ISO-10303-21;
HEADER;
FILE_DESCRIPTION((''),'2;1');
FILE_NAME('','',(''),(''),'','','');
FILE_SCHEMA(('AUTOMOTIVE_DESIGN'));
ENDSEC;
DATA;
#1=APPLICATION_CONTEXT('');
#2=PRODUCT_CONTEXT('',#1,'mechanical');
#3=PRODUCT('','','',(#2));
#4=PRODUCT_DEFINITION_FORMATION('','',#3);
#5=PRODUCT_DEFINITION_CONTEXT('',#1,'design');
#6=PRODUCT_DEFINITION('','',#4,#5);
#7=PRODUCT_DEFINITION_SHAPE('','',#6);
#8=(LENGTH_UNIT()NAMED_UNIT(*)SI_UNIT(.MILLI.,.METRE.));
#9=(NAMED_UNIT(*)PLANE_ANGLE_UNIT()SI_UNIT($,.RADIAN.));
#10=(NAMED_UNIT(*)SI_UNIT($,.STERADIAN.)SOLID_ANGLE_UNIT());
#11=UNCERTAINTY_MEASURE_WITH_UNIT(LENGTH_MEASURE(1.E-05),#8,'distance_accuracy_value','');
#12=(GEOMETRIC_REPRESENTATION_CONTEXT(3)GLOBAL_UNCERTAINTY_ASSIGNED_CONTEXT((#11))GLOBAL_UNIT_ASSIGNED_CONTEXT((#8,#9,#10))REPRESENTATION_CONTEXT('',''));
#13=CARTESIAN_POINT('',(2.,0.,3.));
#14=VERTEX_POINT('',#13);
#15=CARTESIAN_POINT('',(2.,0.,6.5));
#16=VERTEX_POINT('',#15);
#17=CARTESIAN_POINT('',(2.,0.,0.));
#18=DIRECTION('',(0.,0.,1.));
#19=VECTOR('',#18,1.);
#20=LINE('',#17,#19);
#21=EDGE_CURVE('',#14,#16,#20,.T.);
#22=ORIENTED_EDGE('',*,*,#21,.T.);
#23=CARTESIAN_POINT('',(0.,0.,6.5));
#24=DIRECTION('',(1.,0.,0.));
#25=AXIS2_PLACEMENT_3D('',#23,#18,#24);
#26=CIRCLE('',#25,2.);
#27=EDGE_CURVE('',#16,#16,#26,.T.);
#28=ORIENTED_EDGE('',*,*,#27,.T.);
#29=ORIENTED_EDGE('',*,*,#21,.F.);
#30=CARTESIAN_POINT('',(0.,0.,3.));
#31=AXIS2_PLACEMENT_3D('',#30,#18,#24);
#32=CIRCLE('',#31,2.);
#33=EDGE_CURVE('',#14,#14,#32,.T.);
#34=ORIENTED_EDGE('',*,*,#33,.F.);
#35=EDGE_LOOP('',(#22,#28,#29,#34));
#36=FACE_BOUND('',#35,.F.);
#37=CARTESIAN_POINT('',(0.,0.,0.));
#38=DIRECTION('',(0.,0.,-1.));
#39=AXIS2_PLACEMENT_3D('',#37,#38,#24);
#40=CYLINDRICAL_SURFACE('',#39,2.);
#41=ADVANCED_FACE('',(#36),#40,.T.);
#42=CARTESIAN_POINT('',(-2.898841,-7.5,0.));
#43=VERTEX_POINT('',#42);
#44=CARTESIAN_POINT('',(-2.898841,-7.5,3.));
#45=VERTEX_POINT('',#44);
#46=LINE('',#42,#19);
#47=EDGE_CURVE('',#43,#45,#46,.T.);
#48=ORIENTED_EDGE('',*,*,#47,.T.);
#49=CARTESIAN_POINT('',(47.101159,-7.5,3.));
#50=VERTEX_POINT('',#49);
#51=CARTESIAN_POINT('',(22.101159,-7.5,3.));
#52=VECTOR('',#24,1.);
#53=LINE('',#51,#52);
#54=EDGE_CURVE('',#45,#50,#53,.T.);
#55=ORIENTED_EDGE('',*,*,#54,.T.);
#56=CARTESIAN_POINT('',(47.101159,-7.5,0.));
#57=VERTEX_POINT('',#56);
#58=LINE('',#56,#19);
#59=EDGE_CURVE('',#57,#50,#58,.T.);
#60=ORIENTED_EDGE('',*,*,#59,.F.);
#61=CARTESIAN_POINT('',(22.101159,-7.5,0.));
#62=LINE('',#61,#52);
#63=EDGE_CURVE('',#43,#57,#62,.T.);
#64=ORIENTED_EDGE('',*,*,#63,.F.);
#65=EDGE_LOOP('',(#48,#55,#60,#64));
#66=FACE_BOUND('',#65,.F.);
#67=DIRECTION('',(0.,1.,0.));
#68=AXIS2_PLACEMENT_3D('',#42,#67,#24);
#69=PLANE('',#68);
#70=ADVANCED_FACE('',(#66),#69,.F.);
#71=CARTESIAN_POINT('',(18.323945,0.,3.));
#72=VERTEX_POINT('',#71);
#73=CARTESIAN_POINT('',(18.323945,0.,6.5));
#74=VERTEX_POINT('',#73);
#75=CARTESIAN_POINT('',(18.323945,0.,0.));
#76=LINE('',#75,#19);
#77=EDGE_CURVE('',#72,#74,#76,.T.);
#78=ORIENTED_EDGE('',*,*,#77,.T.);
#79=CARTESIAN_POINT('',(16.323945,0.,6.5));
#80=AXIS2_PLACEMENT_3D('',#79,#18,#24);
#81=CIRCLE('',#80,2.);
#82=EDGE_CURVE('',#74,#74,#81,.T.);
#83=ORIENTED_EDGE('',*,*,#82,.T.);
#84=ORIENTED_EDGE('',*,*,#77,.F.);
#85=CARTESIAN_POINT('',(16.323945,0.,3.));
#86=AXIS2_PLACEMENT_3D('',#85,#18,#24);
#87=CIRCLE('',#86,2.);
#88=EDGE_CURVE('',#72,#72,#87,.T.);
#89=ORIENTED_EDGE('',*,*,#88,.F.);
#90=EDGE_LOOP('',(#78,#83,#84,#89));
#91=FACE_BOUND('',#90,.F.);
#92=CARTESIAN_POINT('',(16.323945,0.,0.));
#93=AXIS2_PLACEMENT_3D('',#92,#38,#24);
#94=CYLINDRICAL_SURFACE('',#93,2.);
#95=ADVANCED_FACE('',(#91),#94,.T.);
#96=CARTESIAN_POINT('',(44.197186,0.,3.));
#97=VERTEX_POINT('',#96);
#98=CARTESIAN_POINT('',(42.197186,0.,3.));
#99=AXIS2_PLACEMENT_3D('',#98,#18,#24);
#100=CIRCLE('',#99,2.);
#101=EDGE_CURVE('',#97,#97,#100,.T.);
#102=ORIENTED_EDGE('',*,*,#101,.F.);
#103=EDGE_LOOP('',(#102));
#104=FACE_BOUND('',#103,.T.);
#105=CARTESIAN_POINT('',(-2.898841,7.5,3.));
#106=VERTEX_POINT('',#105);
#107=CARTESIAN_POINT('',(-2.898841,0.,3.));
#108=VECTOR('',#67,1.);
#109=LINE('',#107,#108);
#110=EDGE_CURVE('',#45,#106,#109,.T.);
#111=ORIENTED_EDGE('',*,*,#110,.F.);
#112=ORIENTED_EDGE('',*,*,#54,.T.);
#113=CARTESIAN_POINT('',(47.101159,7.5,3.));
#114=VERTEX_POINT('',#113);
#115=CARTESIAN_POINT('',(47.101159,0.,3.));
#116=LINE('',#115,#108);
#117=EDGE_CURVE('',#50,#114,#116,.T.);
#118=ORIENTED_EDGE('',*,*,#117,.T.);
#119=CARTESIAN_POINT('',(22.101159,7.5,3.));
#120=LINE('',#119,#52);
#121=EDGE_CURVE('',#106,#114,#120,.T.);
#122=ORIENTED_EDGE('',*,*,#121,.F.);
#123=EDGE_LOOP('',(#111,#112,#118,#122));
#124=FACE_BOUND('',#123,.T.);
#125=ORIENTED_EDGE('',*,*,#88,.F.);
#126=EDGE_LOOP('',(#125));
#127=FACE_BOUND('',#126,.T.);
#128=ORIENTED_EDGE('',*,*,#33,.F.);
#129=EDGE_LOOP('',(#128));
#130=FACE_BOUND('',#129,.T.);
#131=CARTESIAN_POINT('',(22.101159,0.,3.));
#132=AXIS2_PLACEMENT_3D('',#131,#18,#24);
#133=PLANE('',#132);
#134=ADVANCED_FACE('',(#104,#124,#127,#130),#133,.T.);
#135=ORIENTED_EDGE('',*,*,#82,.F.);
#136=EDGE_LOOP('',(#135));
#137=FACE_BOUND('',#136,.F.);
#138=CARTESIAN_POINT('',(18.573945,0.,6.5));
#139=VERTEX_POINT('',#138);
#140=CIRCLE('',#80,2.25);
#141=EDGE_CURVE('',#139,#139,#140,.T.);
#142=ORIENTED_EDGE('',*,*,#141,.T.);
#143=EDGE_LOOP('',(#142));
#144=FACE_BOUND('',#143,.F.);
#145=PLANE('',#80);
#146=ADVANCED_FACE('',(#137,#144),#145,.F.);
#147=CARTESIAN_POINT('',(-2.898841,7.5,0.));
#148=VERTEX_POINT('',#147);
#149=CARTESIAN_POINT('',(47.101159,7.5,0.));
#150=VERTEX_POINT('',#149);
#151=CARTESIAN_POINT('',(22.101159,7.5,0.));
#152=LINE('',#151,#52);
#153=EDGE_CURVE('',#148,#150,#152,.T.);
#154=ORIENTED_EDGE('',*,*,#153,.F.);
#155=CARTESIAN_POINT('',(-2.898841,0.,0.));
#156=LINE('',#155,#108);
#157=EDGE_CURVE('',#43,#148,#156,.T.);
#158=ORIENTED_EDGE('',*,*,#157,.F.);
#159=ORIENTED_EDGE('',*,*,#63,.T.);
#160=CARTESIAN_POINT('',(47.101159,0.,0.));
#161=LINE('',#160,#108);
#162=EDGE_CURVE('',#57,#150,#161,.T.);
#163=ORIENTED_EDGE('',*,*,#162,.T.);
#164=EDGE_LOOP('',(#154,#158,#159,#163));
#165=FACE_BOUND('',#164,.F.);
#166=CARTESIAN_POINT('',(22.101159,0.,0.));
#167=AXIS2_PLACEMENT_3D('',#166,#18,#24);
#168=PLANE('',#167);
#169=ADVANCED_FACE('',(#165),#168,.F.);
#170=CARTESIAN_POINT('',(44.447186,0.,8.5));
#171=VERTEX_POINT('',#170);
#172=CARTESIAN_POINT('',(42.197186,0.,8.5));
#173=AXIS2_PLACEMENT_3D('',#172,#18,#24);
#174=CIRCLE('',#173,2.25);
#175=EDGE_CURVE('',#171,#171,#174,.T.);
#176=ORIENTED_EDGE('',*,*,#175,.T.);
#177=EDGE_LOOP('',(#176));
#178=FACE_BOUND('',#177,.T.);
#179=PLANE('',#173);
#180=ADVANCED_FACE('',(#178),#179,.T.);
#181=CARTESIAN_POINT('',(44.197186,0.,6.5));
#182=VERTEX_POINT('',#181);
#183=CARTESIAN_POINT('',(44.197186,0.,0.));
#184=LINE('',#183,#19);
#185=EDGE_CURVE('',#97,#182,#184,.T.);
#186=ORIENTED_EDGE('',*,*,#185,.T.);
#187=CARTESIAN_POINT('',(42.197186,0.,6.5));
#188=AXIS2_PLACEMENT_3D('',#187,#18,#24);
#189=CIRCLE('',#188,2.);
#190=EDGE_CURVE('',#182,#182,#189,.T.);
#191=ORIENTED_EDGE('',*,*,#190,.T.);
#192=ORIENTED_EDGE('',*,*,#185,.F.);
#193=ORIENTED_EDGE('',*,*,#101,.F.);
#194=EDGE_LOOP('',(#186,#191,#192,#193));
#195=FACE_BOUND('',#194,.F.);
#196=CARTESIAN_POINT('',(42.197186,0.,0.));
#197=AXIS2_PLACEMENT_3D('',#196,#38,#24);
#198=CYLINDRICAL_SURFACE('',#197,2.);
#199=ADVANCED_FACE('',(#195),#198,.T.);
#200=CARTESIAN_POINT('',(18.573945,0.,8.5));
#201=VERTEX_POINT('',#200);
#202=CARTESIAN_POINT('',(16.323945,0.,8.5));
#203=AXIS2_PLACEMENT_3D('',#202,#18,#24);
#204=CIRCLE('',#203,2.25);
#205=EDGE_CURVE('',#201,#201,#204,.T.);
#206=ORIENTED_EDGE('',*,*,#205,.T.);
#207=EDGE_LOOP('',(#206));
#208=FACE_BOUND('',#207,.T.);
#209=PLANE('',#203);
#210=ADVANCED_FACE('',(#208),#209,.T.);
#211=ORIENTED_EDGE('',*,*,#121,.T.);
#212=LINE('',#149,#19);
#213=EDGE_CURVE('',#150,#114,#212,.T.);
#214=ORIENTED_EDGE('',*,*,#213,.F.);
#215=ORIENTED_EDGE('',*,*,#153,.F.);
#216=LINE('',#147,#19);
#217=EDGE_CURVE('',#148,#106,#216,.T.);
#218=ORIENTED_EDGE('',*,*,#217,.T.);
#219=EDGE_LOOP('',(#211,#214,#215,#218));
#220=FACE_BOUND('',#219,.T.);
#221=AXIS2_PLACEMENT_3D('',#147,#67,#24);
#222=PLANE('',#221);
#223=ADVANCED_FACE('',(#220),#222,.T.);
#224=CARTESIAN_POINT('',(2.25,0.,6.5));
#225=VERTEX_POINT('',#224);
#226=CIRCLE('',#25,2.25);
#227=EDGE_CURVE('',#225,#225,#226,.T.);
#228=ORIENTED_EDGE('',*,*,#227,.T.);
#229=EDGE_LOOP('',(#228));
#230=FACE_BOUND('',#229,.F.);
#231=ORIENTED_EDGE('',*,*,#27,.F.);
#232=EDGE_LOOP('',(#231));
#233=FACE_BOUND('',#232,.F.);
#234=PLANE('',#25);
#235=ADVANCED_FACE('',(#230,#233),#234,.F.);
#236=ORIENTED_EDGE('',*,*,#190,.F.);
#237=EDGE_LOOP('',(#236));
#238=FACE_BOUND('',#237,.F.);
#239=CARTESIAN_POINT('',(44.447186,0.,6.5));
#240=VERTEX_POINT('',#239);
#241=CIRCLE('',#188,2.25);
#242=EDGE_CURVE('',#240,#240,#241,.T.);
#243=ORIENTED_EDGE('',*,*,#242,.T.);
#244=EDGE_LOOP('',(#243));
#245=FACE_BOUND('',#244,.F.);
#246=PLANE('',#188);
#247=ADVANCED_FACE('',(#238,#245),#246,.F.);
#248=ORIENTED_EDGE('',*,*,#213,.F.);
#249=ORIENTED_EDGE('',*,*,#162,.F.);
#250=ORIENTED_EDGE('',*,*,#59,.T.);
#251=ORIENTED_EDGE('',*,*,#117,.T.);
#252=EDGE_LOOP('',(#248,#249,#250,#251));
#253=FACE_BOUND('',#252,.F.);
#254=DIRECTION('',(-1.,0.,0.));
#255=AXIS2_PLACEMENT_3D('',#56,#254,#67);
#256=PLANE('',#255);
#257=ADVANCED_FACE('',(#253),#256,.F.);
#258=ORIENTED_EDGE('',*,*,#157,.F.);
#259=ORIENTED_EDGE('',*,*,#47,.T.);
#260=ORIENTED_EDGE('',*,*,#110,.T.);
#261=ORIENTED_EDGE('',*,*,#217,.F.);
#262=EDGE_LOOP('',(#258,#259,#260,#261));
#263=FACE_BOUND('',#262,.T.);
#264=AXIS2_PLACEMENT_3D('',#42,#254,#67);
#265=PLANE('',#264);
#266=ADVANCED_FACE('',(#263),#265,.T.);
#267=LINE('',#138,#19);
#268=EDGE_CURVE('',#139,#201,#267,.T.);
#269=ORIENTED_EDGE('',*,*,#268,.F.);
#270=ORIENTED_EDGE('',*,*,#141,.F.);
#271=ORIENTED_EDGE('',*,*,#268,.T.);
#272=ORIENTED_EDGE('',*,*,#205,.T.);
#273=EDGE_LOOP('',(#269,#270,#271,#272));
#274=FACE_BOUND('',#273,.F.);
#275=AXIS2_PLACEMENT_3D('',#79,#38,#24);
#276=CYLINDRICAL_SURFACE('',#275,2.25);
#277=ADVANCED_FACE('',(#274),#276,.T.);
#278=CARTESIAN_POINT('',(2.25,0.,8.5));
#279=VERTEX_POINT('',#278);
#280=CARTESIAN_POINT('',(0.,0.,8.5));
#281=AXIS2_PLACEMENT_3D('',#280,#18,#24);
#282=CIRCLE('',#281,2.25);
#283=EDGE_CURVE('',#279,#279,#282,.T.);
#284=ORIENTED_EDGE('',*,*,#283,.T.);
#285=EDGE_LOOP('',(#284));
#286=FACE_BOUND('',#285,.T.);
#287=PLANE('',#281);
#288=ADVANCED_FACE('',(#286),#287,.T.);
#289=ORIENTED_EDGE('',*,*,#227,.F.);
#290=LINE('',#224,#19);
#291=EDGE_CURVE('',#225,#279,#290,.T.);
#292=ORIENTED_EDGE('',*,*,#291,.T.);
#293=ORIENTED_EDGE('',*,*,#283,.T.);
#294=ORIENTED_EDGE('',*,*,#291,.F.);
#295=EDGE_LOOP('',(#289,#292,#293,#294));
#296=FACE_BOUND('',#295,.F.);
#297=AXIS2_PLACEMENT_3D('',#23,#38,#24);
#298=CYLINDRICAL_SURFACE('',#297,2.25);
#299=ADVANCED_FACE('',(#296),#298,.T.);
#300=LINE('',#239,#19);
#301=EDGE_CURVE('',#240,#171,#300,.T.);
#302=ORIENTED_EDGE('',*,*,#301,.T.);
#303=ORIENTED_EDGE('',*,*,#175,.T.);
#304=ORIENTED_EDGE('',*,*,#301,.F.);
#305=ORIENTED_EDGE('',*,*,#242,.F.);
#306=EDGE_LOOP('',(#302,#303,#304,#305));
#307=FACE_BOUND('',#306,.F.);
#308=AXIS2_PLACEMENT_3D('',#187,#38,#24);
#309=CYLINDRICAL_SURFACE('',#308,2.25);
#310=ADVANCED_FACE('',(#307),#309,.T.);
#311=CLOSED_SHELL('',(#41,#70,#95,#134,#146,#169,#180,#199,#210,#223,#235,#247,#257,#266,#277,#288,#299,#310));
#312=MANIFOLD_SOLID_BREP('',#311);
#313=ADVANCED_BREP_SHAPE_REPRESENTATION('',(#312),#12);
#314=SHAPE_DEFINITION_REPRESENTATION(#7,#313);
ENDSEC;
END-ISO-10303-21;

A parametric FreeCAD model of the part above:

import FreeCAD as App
import Part
import Sketcher
from FreeCAD import Vector

doc = App.newDocument("Part")
params = doc.addObject("Spreadsheet::Sheet", "Params")
for row, (alias, value) in enumerate([
    ("sketch1_diameter", "4 mm"),
    ("sketch1_width", "50 mm"),
    ("sketch1_height", "15 mm"),
    ("pad1_length", "3 mm"),
    ("sketch2_diameter", "4 mm"),
    ("pad2_length", "6.5 mm"),
    ("sketch3_diameter", "4.5 mm"),
    ("pad3_length", "2 mm"),
], start=1):
    params.set(f"A{row}", alias)
    params.set(f"B{row}", "=" + value)
    params.setAlias(f"B{row}", alias)

body = doc.addObject("PartDesign::Body", "Body")

sketch1 = doc.addObject("Sketcher::SketchObject", "Sketch")
body.addObject(sketch1)
sketch1.AttachmentSupport = (doc.XY_Plane, [""])
sketch1.MapMode = "FlatFace"
sketch1.addGeometry([
    Part.LineSegment(Vector(-2.898841, 7.5, 0), Vector(-2.898841, -7.5, 0)),
    Part.LineSegment(Vector(-2.898841, -7.5, 0), Vector(47.101159, -7.5, 0)),
    Part.LineSegment(Vector(47.101159, -7.5, 0), Vector(47.101159, 7.5, 0)),
    Part.LineSegment(Vector(47.101159, 7.5, 0), Vector(-2.898841, 7.5, 0)),
    Part.Circle(Vector(0, 0, 0), Vector(0, 0, 1), 2),
    Part.Circle(Vector(16.323945, 0, 0), Vector(0, 0, 1), 2),
    Part.Circle(Vector(42.197186, 0, 0), Vector(0, 0, 1), 2),
], False)
sketch1.addConstraint([
    Sketcher.Constraint("Coincident", 0, 2, 1, 1),
    Sketcher.Constraint("Coincident", 1, 2, 2, 1),
    Sketcher.Constraint("Coincident", 2, 2, 3, 1),
    Sketcher.Constraint("Coincident", 3, 2, 0, 1),
    Sketcher.Constraint("Vertical", 0),
    Sketcher.Constraint("Horizontal", 1),
    Sketcher.Constraint("Vertical", 2),
    Sketcher.Constraint("Horizontal", 3),
    Sketcher.Constraint("Coincident", 4, 3, -1, 1),
    Sketcher.Constraint("Equal", 4, 5),
    Sketcher.Constraint("Equal", 5, 6),
    Sketcher.Constraint("PointOnObject", 5, 3, -1),
    Sketcher.Constraint("PointOnObject", 6, 3, -1),
    Sketcher.Constraint("Diameter", 4, 4.0),
    Sketcher.Constraint("DistanceX", 1, 1, 1, 2, 50.0),
    Sketcher.Constraint("DistanceY", 0, 2, 0, 1, 15.0),
    Sketcher.Constraint("DistanceY", 0, 2, -1, 1, 7.5),
    Sketcher.Constraint("DistanceX", 0, 2, -1, 1, 2.898841),
    Sketcher.Constraint("DistanceX", 5, 3, 6, 3, 25.873241),
    Sketcher.Constraint("DistanceX", -1, 1, 5, 3, 16.323945),
])
sketch1.setExpression("Constraints[13]", "Params.sketch1_diameter")
sketch1.setExpression("Constraints[14]", "Params.sketch1_width")
sketch1.setExpression("Constraints[15]", "Params.sketch1_height")
pad1 = doc.addObject("PartDesign::Pad", "Pad")
body.addObject(pad1)
pad1.Profile = sketch1
pad1.setExpression("Length", "Params.pad1_length")

sketch2 = doc.addObject("Sketcher::SketchObject", "Sketch001")
body.addObject(sketch2)
sketch2.AttachmentSupport = (doc.XY_Plane, [""])
sketch2.MapMode = "FlatFace"
sketch2.addGeometry([
    Part.Circle(Vector(0, 0, 0), Vector(0, 0, 1), 2),
    Part.Circle(Vector(16.323945, 0, 0), Vector(0, 0, 1), 2),
    Part.Circle(Vector(42.197186, 0, 0), Vector(0, 0, 1), 2),
], False)
sketch2.addConstraint([
    Sketcher.Constraint("Coincident", 0, 3, -1, 1),
    Sketcher.Constraint("Equal", 0, 1),
    Sketcher.Constraint("Equal", 1, 2),
    Sketcher.Constraint("PointOnObject", 1, 3, -1),
    Sketcher.Constraint("PointOnObject", 2, 3, -1),
    Sketcher.Constraint("Diameter", 0, 4.0),
    Sketcher.Constraint("DistanceX", 1, 3, 2, 3, 25.873241),
    Sketcher.Constraint("DistanceX", -1, 1, 1, 3, 16.323945),
])
sketch2.setExpression("Constraints[5]", "Params.sketch2_diameter")
pad2 = doc.addObject("PartDesign::Pad", "Pad001")
body.addObject(pad2)
pad2.Profile = sketch2
pad2.setExpression("Length", "Params.pad2_length")

sketch3 = doc.addObject("Sketcher::SketchObject", "Sketch002")
body.addObject(sketch3)
sketch3.AttachmentSupport = (doc.XY_Plane, [""])
sketch3.MapMode = "FlatFace"
sketch3.AttachmentOffset = App.Placement(Vector(0, 0, 6.5), App.Rotation())
sketch3.addGeometry([
    Part.Circle(Vector(0, 0, 0), Vector(0, 0, 1), 2.25),
    Part.Circle(Vector(16.323945, 0, 0), Vector(0, 0, 1), 2.25),
    Part.Circle(Vector(42.197186, 0, 0), Vector(0, 0, 1), 2.25),
], False)
sketch3.addConstraint([
    Sketcher.Constraint("Coincident", 0, 3, -1, 1),
    Sketcher.Constraint("Equal", 0, 1),
    Sketcher.Constraint("Equal", 1, 2),
    Sketcher.Constraint("PointOnObject", 1, 3, -1),
    Sketcher.Constraint("PointOnObject", 2, 3, -1),
    Sketcher.Constraint("Diameter", 0, 4.5),
    Sketcher.Constraint("DistanceX", 1, 3, 2, 3, 25.873241),
    Sketcher.Constraint("DistanceX", -1, 1, 1, 3, 16.323945),
])
sketch3.setExpression("Constraints[5]", "Params.sketch3_diameter")
pad3 = doc.addObject("PartDesign::Pad", "Pad002")
body.addObject(pad3)
pad3.Profile = sketch3
pad3.setExpression("Length", "Params.pad3_length")

doc.recompute()
